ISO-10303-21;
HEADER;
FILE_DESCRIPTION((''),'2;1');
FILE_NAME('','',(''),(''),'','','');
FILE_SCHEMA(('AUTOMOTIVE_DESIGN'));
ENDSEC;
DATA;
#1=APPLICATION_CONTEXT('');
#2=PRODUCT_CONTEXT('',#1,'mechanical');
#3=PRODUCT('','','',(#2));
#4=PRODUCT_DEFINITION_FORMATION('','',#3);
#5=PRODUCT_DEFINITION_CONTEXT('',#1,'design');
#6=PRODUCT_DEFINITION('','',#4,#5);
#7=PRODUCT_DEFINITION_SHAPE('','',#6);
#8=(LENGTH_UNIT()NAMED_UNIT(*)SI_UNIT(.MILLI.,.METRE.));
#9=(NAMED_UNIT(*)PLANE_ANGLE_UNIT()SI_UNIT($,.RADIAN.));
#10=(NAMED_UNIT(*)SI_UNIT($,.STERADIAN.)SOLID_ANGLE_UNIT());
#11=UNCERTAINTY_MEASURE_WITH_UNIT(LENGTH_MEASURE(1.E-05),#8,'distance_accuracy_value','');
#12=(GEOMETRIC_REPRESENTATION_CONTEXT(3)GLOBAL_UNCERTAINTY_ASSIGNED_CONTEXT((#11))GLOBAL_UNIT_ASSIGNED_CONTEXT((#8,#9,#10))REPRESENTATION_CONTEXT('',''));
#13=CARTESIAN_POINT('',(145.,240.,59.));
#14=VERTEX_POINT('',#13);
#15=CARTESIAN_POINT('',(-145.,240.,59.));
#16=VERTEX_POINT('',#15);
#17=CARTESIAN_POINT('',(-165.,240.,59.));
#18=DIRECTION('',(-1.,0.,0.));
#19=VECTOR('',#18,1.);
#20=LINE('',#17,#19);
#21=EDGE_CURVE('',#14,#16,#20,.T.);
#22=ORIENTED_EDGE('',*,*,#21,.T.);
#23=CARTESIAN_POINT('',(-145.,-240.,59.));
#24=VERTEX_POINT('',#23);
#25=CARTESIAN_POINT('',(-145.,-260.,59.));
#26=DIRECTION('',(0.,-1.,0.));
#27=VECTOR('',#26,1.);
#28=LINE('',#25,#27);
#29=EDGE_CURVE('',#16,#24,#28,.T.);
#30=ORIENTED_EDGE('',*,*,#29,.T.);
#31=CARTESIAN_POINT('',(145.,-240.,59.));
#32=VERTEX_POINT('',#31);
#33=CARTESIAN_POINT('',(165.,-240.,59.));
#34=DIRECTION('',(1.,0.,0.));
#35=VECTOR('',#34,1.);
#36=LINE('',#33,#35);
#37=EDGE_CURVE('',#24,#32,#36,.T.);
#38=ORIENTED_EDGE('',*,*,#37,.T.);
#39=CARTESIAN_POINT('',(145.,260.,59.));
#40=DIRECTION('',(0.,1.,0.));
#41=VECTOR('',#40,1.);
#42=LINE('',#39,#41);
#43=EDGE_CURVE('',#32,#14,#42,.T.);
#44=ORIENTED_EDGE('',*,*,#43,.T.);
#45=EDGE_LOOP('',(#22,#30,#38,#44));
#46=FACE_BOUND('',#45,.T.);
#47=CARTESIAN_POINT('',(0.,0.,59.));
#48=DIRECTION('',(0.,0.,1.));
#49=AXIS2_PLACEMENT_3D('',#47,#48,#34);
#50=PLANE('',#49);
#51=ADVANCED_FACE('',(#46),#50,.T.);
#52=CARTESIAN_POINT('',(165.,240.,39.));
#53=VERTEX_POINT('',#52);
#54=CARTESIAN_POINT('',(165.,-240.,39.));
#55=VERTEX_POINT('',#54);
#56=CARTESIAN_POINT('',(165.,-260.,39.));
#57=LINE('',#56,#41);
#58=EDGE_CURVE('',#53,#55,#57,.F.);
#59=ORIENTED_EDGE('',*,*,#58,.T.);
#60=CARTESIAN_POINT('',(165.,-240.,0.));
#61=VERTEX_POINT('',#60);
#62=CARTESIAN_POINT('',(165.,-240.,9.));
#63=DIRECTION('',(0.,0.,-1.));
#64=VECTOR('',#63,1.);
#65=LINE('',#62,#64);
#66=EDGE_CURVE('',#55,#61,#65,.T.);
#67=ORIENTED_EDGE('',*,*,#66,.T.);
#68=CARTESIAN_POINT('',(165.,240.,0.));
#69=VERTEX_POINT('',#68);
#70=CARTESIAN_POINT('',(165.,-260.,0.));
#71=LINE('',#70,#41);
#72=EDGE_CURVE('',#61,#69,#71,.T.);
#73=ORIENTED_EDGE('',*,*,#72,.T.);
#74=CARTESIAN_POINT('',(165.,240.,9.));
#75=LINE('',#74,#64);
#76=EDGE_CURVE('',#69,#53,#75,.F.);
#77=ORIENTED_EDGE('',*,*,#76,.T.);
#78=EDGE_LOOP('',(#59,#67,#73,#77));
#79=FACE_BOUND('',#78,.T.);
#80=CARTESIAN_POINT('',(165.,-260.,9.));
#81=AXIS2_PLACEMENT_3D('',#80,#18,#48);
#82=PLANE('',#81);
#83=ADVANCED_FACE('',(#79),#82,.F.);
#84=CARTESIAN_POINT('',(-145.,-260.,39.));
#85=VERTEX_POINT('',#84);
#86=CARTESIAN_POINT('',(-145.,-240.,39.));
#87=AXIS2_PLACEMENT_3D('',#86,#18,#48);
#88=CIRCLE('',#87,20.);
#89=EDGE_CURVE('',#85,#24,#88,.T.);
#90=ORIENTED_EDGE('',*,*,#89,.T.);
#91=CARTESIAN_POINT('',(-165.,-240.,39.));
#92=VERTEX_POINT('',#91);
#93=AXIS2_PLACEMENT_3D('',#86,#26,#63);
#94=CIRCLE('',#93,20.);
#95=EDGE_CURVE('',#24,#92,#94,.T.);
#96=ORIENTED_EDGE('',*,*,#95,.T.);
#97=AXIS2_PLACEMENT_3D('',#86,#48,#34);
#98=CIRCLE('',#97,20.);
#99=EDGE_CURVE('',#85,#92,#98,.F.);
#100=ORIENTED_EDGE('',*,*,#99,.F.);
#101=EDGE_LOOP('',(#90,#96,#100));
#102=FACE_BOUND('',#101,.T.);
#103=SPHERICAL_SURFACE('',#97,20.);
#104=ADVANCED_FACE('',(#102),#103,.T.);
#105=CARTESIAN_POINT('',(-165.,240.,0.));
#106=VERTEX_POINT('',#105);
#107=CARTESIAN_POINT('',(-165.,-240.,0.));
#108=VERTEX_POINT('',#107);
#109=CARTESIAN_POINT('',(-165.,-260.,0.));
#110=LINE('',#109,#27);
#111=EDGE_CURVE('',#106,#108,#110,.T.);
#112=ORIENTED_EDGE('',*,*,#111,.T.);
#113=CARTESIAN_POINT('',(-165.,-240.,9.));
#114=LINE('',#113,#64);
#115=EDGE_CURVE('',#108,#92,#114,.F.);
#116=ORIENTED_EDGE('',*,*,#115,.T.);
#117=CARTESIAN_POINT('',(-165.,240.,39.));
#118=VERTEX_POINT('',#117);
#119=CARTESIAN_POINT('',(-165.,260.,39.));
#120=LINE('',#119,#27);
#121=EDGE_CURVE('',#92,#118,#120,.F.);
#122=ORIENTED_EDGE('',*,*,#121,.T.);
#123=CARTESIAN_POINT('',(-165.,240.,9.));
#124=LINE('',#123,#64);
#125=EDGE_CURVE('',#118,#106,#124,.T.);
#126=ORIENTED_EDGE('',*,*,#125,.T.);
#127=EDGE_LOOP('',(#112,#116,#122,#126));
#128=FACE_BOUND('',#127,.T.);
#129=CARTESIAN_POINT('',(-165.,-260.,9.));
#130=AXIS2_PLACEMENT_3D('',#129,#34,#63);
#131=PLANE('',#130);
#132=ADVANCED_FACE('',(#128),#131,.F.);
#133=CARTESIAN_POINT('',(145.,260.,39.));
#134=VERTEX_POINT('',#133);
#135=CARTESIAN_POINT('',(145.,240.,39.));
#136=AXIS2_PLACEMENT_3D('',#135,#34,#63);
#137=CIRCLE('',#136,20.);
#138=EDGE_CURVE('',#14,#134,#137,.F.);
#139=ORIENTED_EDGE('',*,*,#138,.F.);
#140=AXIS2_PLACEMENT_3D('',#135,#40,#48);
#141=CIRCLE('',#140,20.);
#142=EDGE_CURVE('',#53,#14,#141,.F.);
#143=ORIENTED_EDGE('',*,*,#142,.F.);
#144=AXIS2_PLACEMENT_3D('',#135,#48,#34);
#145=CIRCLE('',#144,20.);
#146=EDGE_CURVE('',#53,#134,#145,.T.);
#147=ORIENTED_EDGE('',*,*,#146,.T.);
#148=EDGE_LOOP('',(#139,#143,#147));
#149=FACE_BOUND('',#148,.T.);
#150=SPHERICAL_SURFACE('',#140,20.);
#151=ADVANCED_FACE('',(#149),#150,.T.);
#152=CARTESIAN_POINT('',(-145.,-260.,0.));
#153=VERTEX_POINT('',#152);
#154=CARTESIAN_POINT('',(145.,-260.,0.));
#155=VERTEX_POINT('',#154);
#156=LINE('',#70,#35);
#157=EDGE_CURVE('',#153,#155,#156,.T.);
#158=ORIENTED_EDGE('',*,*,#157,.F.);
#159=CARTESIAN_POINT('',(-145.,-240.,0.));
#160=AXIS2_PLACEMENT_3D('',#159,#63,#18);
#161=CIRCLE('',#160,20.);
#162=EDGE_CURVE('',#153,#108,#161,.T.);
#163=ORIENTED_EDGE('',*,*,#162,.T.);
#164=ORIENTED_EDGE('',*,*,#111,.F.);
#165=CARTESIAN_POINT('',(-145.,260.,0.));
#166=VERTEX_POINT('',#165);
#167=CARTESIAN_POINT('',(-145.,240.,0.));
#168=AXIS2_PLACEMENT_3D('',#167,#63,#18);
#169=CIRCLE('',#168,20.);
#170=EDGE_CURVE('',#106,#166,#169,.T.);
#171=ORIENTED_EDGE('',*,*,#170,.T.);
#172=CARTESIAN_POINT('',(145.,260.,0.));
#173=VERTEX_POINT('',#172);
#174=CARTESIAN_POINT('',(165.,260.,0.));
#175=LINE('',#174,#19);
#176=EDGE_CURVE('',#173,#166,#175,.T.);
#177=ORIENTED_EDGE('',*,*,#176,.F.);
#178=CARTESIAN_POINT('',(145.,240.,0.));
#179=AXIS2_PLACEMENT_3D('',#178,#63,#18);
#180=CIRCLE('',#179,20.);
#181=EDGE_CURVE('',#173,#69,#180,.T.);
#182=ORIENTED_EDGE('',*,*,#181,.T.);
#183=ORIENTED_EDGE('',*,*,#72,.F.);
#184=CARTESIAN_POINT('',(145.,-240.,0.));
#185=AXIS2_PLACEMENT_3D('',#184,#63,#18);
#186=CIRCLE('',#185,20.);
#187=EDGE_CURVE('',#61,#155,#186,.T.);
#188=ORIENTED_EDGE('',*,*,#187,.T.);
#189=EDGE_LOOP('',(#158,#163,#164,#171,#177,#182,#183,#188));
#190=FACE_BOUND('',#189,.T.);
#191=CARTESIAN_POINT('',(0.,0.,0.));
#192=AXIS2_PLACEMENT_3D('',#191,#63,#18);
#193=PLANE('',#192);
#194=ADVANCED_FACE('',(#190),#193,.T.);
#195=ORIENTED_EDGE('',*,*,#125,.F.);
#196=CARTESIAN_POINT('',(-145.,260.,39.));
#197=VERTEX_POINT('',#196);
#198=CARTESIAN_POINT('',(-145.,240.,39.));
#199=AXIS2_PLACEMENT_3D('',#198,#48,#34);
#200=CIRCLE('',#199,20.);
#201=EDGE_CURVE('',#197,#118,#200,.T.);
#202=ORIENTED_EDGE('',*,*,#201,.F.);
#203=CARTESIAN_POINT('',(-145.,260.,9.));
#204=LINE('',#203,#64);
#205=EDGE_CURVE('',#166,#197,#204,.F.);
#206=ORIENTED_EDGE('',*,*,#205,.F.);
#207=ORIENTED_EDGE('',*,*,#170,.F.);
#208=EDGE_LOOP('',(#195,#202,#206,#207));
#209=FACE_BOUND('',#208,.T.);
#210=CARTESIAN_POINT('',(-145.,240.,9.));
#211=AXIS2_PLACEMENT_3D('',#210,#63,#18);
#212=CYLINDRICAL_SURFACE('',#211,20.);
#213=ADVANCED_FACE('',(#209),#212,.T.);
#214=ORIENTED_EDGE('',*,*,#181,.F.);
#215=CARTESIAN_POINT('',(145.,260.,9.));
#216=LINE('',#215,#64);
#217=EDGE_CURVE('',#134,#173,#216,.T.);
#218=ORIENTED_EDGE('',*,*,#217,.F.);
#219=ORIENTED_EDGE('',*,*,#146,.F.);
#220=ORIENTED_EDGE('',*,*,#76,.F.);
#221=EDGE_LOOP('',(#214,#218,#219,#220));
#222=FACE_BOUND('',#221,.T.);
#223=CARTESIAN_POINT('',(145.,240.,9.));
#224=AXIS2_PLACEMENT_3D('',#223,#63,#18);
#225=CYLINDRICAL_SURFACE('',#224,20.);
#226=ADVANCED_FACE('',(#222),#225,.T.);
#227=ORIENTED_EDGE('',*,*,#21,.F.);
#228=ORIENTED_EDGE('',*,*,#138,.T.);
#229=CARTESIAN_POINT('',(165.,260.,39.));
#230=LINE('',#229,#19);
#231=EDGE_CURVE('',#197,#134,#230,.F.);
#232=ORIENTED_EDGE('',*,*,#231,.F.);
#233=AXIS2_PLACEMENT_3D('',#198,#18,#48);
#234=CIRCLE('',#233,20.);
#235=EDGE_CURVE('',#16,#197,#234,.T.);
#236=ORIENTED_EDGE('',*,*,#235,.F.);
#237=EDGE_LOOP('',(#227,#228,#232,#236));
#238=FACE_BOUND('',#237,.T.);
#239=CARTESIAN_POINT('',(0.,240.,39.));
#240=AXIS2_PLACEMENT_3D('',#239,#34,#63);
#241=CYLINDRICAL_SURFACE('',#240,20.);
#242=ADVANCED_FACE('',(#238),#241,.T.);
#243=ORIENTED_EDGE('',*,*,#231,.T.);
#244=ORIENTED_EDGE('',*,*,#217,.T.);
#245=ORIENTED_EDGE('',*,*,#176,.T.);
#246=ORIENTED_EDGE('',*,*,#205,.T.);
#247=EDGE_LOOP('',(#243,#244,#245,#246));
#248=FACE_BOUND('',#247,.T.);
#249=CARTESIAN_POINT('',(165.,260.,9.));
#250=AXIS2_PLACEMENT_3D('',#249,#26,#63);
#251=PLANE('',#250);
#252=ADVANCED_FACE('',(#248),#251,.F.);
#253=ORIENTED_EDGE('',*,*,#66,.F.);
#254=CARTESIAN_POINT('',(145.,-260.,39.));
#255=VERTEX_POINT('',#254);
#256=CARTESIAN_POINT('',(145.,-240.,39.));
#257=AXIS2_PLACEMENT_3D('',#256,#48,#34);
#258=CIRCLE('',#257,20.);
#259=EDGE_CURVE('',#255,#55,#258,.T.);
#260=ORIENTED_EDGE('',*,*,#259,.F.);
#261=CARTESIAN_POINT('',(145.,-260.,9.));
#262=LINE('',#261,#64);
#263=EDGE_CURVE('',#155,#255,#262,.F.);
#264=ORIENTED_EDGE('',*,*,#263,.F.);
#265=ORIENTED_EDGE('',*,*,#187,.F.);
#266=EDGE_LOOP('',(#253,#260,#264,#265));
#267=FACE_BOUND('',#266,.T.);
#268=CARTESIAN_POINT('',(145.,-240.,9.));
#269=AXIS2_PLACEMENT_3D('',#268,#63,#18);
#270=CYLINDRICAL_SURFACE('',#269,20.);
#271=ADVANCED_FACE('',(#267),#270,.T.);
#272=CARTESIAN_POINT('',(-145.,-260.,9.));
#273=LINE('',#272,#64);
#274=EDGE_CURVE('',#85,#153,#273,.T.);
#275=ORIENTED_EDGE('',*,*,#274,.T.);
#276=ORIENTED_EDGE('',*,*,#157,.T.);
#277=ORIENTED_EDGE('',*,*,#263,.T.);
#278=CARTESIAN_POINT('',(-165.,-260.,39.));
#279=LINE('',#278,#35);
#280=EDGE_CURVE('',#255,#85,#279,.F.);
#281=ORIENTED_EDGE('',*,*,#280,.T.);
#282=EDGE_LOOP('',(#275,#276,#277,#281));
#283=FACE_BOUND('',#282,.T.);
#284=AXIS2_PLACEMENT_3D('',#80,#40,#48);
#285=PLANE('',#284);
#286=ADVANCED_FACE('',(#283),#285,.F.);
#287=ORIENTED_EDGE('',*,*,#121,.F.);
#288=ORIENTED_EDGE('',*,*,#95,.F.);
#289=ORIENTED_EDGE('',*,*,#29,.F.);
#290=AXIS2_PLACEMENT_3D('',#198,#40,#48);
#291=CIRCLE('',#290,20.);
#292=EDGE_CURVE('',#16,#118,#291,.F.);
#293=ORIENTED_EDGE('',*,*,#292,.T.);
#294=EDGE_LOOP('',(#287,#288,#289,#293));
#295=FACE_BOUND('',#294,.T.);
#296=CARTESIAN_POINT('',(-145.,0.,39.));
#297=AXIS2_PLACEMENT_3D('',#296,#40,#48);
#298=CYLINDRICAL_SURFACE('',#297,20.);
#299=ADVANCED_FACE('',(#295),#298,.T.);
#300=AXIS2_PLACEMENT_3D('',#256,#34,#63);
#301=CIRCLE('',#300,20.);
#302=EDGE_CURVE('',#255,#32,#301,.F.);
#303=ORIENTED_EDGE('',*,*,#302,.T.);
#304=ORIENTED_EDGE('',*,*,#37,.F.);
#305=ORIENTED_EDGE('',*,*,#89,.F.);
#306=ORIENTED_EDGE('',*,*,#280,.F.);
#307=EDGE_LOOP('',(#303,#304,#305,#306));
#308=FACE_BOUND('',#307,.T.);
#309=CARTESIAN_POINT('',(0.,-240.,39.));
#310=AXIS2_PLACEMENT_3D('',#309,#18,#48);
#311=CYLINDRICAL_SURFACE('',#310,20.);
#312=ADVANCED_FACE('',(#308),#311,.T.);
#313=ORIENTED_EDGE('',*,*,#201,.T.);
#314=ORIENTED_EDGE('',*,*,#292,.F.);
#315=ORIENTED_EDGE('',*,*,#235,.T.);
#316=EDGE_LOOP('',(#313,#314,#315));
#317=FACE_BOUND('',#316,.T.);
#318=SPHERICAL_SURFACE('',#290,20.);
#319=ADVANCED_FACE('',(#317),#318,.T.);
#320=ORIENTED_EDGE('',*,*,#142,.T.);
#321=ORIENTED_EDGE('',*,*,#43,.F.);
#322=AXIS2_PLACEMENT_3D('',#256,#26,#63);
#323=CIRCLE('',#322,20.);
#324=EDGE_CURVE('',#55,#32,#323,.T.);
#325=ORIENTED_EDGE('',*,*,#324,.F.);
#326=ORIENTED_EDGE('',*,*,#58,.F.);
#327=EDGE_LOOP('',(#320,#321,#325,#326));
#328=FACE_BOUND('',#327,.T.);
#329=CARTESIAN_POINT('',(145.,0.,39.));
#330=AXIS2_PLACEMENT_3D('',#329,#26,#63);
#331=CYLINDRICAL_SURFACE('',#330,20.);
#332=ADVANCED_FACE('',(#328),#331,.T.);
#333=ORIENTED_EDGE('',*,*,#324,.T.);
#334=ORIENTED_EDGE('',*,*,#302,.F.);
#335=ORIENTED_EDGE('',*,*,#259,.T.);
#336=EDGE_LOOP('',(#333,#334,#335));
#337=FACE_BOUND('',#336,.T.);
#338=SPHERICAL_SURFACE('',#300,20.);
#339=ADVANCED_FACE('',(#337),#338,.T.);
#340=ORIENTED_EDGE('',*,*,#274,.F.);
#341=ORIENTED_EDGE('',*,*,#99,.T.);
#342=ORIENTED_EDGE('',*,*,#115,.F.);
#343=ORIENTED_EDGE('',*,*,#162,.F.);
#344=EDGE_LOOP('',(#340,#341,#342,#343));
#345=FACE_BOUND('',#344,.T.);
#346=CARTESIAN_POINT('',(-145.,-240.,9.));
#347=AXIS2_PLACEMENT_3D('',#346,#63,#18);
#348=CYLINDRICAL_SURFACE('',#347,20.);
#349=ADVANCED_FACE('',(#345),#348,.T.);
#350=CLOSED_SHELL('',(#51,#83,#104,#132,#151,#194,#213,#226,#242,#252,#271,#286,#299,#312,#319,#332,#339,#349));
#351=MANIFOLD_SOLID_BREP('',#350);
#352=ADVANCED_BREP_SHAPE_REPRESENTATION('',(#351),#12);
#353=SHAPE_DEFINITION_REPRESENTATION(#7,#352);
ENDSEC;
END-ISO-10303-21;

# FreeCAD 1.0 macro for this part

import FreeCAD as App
import Part
import Sketcher
Q = App.Units.Quantity


def edges_at(feature, points):
    """Names of the edges that pass closest to the given points."""
    edges = feature.Shape.Edges
    near = lambda p: min(range(len(edges)), key=lambda i: edges[i].distToShape(Part.Vertex(*p))[0])
    return sorted({f"Edge{near(p) + 1}" for p in points})


def add_polygon(sketch, points):
    """Adds a closed chain of lines whose ends are joined by coincident constraints."""
    first, n = sketch.GeometryCount, len(points)
    for a, b in zip(points, points[1:] + points[:1]):
        sketch.addGeometry(Part.LineSegment(App.Vector(*a, 0), App.Vector(*b, 0)), False)
    for i in range(n):
        sketch.addConstraint(Sketcher.Constraint("Coincident", first + i, 2, first + (i + 1) % n, 1))

doc = App.newDocument("Part")
params = doc.addObject("Spreadsheet::Sheet", "Params")
for row, (alias, value) in enumerate([
    ("sketch1_width", "330 mm"),
    ("sketch1_height", "520 mm"),
    ("pad1_length", "9 mm"),
    ("sketch2_width", "330 mm"),
    ("sketch2_height", "520 mm"),
    ("pad2_length", "50 mm"),
    ("fillet_radius", "20 mm"),
], start=1):
    params.set(f"A{row}", alias)
    params.set(f"B{row}", "=" + value)
    params.setAlias(f"B{row}", alias)

body = doc.addObject("PartDesign::Body", "Body")

sketch1 = body.newObject("Sketcher::SketchObject", "Sketch")
sketch1.AttachmentSupport = (doc.getObject("XY_Plane"), [""])
sketch1.MapMode = "FlatFace"
add_polygon(sketch1, [(-165, -260), (165, -260), (165, 260), (-165, 260)])
sketch1.addConstraint([
    Sketcher.Constraint("Horizontal", 0),
    Sketcher.Constraint("Vertical", 1),
    Sketcher.Constraint("Horizontal", 2),
    Sketcher.Constraint("Vertical", 3),
    Sketcher.Constraint("Symmetric", 0, 2, 2, 2, -1, 1),
    Sketcher.Constraint("DistanceX", 0, 1, 0, 2, Q("330 mm")),
    Sketcher.Constraint("DistanceY", 1, 1, 1, 2, Q("520 mm")),
])
sketch1.setExpression("Constraints[9]", "Params.sketch1_width")
sketch1.setExpression("Constraints[10]", "Params.sketch1_height")
pad1 = body.newObject("PartDesign::Pad", "Pad")
pad1.Profile = sketch1
pad1.setExpression("Length", "Params.pad1_length")

sketch2 = body.newObject("Sketcher::SketchObject", "Sketch001")
sketch2.AttachmentSupport = (doc.getObject("XY_Plane"), [""])
sketch2.MapMode = "FlatFace"
sketch2.AttachmentOffset = App.Placement(App.Vector(0, 0, 9), App.Rotation())
add_polygon(sketch2, [(-165, 260), (-165, -260), (165, -260), (165, 260)])
sketch2.addConstraint([
    Sketcher.Constraint("Vertical", 0),
    Sketcher.Constraint("Horizontal", 1),
    Sketcher.Constraint("Vertical", 2),
    Sketcher.Constraint("Horizontal", 3),
    Sketcher.Constraint("Symmetric", 0, 2, 2, 2, -1, 1),
    Sketcher.Constraint("DistanceX", 1, 1, 1, 2, Q("330 mm")),
    Sketcher.Constraint("DistanceY", 0, 2, 0, 1, Q("520 mm")),
])
sketch2.setExpression("Constraints[9]", "Params.sketch2_width")
sketch2.setExpression("Constraints[10]", "Params.sketch2_height")
pad2 = body.newObject("PartDesign::Pad", "Pad001")
pad2.Profile = sketch2
pad2.setExpression("Length", "Params.pad2_length")
doc.recompute()

fillet = body.newObject("PartDesign::Fillet", "Fillet")
fillet.Base = (pad2, edges_at(pad2, [
    (165, 0, 59),
    (0, 260, 59),
    (-165, 0, 59),
    (0, -260, 59),
    (165, 260, 29.5),
    (165, -260, 29.5),
    (-165, -260, 29.5),
    (-165, 260, 29.5),
]))
fillet.setExpression("Radius", "Params.fillet_radius")

doc.recompute()
